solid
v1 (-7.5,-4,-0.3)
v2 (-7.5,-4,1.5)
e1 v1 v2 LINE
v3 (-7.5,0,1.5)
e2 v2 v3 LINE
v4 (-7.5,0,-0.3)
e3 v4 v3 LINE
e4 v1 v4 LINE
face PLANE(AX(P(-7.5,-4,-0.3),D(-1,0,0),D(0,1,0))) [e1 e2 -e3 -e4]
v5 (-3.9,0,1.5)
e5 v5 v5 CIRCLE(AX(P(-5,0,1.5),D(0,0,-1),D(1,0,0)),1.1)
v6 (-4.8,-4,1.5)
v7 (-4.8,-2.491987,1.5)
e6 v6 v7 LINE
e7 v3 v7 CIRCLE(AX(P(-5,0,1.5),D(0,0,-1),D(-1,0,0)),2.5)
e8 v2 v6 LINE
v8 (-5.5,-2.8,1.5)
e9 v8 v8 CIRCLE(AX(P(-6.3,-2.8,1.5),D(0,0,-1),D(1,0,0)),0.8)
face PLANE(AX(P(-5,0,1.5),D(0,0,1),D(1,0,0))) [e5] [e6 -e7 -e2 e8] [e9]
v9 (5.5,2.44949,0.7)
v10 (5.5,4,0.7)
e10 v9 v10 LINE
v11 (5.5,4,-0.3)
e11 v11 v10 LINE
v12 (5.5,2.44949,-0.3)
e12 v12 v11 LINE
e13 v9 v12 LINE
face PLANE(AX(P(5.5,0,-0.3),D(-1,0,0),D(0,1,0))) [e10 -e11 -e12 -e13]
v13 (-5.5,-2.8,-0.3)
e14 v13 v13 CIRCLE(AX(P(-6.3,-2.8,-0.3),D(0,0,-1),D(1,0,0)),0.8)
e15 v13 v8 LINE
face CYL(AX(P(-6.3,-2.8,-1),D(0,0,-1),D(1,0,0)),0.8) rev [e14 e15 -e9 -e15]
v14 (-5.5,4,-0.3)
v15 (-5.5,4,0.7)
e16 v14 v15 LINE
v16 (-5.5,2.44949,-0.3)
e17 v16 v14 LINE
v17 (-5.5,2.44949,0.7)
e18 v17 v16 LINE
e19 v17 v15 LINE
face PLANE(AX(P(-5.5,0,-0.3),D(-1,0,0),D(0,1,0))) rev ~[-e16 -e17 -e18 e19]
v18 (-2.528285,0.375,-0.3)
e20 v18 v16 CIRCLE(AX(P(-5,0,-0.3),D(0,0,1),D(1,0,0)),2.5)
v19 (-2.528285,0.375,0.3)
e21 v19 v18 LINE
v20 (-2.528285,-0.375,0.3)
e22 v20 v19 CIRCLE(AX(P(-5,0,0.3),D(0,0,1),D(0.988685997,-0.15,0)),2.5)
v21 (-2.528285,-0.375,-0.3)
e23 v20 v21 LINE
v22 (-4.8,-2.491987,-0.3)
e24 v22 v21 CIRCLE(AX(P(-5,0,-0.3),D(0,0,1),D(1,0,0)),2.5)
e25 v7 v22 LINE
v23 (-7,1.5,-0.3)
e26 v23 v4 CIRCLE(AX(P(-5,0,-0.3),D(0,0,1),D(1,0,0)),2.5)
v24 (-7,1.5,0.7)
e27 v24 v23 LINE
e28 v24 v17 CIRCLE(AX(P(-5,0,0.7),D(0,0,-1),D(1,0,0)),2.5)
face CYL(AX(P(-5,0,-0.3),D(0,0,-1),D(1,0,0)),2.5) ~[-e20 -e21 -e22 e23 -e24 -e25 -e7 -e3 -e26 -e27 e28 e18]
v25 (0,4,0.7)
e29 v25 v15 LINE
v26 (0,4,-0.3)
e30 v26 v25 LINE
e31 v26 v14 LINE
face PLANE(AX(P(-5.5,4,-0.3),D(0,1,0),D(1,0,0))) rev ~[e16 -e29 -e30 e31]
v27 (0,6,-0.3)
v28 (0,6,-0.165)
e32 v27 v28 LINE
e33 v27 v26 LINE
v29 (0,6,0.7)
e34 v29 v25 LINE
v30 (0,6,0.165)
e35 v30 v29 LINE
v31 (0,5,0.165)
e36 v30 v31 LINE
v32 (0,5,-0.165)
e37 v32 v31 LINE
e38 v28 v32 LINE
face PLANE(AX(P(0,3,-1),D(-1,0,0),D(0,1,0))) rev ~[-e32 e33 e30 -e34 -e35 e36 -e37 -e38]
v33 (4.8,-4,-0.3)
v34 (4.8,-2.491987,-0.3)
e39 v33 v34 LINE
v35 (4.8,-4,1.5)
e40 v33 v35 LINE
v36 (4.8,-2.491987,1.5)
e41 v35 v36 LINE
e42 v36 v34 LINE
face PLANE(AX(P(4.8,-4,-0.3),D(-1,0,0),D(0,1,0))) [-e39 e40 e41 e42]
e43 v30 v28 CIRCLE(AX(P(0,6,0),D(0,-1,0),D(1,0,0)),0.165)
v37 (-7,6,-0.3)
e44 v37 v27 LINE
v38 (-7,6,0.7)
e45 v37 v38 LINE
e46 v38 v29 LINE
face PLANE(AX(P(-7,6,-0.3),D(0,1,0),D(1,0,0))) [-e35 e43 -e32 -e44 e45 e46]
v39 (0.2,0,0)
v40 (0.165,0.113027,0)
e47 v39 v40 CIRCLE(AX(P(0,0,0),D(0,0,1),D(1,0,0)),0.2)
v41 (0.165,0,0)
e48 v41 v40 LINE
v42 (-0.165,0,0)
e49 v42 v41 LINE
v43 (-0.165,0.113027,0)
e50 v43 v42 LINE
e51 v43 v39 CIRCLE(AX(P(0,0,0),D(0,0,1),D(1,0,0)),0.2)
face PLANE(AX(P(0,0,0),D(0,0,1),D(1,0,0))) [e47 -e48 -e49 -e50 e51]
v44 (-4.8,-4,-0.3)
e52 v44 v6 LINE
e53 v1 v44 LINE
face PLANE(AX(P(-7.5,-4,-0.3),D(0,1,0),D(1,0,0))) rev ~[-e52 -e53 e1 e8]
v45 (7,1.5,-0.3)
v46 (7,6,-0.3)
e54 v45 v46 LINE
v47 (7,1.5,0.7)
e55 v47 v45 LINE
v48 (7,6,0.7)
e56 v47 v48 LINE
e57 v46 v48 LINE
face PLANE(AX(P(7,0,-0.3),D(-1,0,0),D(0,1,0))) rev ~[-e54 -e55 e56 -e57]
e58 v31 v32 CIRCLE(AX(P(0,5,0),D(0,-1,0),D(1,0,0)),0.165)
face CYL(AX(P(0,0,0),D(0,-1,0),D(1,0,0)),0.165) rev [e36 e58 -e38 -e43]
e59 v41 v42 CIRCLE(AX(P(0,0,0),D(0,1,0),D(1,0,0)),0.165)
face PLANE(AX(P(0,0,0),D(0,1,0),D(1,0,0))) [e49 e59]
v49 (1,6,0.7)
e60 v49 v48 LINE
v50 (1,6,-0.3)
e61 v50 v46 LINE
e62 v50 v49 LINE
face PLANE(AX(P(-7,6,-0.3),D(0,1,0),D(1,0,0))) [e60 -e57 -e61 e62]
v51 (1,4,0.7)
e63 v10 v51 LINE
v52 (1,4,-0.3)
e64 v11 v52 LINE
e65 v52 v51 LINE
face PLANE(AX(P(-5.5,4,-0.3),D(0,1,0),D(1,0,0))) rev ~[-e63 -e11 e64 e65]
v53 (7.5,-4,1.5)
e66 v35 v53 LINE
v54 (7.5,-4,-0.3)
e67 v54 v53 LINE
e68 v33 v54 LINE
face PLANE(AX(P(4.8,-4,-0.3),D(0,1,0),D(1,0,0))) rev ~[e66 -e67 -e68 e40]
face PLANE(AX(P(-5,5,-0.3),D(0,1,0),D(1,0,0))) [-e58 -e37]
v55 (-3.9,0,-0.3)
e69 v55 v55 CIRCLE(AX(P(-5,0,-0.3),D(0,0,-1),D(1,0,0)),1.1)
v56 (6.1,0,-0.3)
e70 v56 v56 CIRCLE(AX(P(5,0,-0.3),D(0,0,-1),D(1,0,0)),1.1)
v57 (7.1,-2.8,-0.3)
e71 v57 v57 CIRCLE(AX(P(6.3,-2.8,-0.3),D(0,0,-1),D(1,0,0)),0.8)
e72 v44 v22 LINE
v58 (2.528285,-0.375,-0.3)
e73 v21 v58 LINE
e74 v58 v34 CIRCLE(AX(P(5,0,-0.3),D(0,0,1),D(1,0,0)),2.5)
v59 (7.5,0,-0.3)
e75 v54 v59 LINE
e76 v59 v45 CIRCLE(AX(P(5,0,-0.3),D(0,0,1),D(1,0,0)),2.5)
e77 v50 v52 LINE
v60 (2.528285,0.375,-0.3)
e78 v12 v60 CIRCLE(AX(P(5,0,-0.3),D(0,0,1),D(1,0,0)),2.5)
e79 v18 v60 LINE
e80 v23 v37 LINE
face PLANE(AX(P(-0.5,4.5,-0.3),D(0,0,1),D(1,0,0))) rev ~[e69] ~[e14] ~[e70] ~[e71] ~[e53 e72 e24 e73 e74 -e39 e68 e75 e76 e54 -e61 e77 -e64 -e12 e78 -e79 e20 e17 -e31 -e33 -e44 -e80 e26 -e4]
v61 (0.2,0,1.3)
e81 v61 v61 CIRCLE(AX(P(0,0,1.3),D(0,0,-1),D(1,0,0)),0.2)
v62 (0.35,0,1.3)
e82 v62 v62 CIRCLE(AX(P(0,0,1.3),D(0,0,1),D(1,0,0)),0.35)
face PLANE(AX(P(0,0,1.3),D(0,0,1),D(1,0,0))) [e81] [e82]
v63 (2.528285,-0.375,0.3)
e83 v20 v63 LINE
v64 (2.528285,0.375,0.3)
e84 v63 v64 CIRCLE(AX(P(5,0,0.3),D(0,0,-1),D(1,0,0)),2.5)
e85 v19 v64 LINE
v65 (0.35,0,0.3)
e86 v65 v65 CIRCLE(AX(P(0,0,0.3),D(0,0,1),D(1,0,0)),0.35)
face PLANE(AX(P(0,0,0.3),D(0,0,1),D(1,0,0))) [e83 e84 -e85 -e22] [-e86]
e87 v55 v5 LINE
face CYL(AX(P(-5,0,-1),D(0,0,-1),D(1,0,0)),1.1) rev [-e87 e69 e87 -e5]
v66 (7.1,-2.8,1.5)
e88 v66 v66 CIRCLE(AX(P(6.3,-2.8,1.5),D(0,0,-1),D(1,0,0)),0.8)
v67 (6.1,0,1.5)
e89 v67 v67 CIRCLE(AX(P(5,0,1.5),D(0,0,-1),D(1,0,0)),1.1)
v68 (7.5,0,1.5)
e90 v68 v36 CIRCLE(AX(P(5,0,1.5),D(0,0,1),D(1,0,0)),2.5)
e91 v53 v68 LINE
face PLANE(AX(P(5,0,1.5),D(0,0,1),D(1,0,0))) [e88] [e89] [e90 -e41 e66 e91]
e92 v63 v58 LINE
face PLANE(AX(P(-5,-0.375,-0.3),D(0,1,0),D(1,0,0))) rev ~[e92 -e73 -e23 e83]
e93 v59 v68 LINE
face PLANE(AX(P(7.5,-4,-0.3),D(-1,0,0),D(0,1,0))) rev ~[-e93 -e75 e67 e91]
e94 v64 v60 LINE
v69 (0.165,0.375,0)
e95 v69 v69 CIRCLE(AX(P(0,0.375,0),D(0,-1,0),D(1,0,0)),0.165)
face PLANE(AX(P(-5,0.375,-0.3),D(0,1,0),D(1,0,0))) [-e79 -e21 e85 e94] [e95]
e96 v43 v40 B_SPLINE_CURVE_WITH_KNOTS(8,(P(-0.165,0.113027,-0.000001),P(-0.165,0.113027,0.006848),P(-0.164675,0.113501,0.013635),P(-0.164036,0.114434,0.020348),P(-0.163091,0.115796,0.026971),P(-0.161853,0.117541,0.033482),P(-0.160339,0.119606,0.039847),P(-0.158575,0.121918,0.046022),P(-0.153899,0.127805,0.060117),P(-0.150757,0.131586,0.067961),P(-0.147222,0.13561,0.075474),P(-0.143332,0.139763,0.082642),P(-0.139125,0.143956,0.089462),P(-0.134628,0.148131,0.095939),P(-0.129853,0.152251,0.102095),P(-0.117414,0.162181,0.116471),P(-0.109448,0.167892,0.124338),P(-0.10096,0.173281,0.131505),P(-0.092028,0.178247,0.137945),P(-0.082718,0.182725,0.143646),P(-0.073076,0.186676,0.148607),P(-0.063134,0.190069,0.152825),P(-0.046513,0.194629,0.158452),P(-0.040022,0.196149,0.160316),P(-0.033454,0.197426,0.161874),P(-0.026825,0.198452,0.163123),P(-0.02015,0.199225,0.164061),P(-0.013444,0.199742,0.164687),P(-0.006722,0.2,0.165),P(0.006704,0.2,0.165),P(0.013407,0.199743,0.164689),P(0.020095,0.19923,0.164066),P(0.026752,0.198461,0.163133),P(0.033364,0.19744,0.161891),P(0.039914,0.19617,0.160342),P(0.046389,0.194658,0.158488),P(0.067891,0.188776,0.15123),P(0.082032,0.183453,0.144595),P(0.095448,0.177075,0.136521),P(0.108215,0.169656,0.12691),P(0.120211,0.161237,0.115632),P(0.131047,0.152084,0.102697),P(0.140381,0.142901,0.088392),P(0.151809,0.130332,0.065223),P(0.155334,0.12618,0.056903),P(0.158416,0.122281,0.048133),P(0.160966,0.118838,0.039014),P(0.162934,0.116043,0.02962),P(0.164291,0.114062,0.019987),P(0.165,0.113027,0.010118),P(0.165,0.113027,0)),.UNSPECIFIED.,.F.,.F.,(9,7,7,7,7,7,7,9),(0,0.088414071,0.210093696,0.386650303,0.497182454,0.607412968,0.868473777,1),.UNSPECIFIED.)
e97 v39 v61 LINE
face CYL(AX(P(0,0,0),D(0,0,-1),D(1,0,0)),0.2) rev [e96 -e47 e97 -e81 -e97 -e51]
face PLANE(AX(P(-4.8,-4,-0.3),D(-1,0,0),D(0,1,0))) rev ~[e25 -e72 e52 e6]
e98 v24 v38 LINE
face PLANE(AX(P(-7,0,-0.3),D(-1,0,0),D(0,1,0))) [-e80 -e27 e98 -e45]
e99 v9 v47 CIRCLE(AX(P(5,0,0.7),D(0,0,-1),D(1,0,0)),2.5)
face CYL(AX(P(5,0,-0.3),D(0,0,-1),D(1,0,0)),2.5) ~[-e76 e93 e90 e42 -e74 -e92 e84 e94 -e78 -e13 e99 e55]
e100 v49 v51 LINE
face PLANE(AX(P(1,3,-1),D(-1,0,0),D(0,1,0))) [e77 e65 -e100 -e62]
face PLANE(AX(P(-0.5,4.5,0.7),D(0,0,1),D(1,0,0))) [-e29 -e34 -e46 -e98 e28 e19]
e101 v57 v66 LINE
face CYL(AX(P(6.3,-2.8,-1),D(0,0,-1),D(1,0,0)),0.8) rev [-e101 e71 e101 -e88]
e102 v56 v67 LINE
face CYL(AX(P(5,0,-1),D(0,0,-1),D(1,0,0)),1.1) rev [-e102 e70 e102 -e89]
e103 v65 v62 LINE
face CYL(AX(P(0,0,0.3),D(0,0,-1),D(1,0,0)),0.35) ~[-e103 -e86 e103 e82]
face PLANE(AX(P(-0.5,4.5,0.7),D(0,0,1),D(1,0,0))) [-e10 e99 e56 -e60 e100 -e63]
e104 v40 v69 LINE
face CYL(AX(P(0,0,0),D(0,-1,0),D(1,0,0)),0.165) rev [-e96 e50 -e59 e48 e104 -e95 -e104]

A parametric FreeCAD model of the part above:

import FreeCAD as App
import Part
import Sketcher

V = App.Vector

doc = App.newDocument("Part")
params = doc.addObject("Spreadsheet::Sheet", "Params")
for row, (alias, value) in enumerate([
    ("sketch1_width", "1 mm"),
    ("sketch1_height", "6 mm"),
    ("pad1_length", "4 mm"),
    ("sketch2_width", "9 mm"),
    ("sketch2_height", "1 mm"),
    ("pad2_length", "1 mm"),
    ("sketch3_diameter", "1.6 mm"),
    ("pad3_length", "10 mm"),
    ("sketch4_diameter", "0.4 mm"),
    ("pad4_length", "9 mm"),
    ("sketch5_diameter", "2.2 mm"),
    ("pad5_length", "4 mm"),
    ("sketch6_diameter", "2.2 mm"),
    ("pad6_length", "4 mm"),
    ("sketch7_diameter", "0.33 mm"),
    ("pad7_length", "8 mm"),
    ("sketch8_diameter", "1.6 mm"),
    ("pad8_length", "10 mm"),
    ("sketch9_height", "4 mm"),
    ("sketch9_width", "2.7 mm"),
    ("pad9_length", "1.8 mm"),
    ("sketch10_height", "4 mm"),
    ("sketch10_width", "2.7 mm"),
    ("pad10_length", "1.8 mm"),
    ("sketch11_diameter", "5 mm"),
    ("pad11_length", "1.8 mm"),
    ("sketch12_diameter", "5 mm"),
    ("pad12_length", "1.8 mm"),
    ("sketch13_diameter", "0.7 mm"),
    ("pad13_length", "1 mm"),
    ("sketch14_width", "10 mm"),
    ("sketch14_height", "0.75 mm"),
    ("pad14_length", "0.6 mm"),
    ("sketch15_width", "11 mm"),
    ("sketch15_height", "4 mm"),
    ("pad15_length", "1 mm"),
    ("sketch16_width", "14 mm"),
    ("sketch16_height", "6 mm"),
    ("pad16_length", "1 mm"),
], start=1):
    params.set(f"A{row}", alias)
    params.set(f"B{row}", "=" + value)
    params.setAlias(f"B{row}", alias)

body = doc.addObject("PartDesign::Body", "Body")

# Sketch on XY plane
sketch1 = doc.addObject("Sketcher::SketchObject", "Sketch")
body.addObject(sketch1)
sketch1.AttachmentSupport = (doc.XY_Plane, [""])
sketch1.MapMode = "FlatFace"
sketch1.AttachmentOffset = App.Placement(V(0, 0, -1), App.Rotation())
sketch1.addGeometry(Part.LineSegment(V(0, 9, 0), V(0, 3, 0)), False)
sketch1.addGeometry(Part.LineSegment(V(0, 3, 0), V(1, 3, 0)), False)
sketch1.addGeometry(Part.LineSegment(V(1, 3, 0), V(1, 9, 0)), False)
sketch1.addGeometry(Part.LineSegment(V(1, 9, 0), V(0, 9, 0)), False)
sketch1.addConstraint(Sketcher.Constraint("Coincident", 0, 2, 1, 1))
sketch1.addConstraint(Sketcher.Constraint("Coincident", 1, 2, 2, 1))
sketch1.addConstraint(Sketcher.Constraint("Coincident", 2, 2, 3, 1))
sketch1.addConstraint(Sketcher.Constraint("Coincident", 3, 2, 0, 1))
sketch1.addConstraint(Sketcher.Constraint("Vertical", 0))
sketch1.addConstraint(Sketcher.Constraint("Horizontal", 1))
sketch1.addConstraint(Sketcher.Constraint("Vertical", 2))
sketch1.addConstraint(Sketcher.Constraint("Horizontal", 3))
sketch1.addConstraint(Sketcher.Constraint("PointOnObject", 0, 2, -2))
sketch1.addConstraint(Sketcher.Constraint("DistanceX", 1, 1, 1, 2, 1.0))
sketch1.addConstraint(Sketcher.Constraint("DistanceY", 0, 2, 0, 1, 6.0))
sketch1.addConstraint(Sketcher.Constraint("DistanceY", -1, 1, 0, 2, 3.0))
sketch1.setExpression("Constraints[9]", "Params.sketch1_width")
sketch1.setExpression("Constraints[10]", "Params.sketch1_height")
pad1 = doc.addObject("PartDesign::Pad", "Pad")
body.addObject(pad1)
pad1.Profile = sketch1
pad1.setExpression("Length", "Params.pad1_length")
body2 = doc.addObject("PartDesign::Body", "Body001")

# Sketch on XY plane
sketch2 = doc.addObject("Sketcher::SketchObject", "Sketch001")
body2.addObject(sketch2)
sketch2.AttachmentSupport = (doc.getObject("XY_Plane001"), [""])
sketch2.MapMode = "FlatFace"
sketch2.AttachmentOffset = App.Placement(V(0, 0, -0.3), App.Rotation())
sketch2.addGeometry(Part.LineSegment(V(-5, 5, 0), V(-5, 4, 0)), False)
sketch2.addGeometry(Part.LineSegment(V(-5, 4, 0), V(4, 4, 0)), False)
sketch2.addGeometry(Part.LineSegment(V(4, 4, 0), V(4, 5, 0)), False)
sketch2.addGeometry(Part.LineSegment(V(4, 5, 0), V(-5, 5, 0)), False)
sketch2.addConstraint(Sketcher.Constraint("Coincident", 0, 2, 1, 1))
sketch2.addConstraint(Sketcher.Constraint("Coincident", 1, 2, 2, 1))
sketch2.addConstraint(Sketcher.Constraint("Coincident", 2, 2, 3, 1))
sketch2.addConstraint(Sketcher.Constraint("Coincident", 3, 2, 0, 1))
sketch2.addConstraint(Sketcher.Constraint("Vertical", 0))
sketch2.addConstraint(Sketcher.Constraint("Horizontal", 1))
sketch2.addConstraint(Sketcher.Constraint("Vertical", 2))
sketch2.addConstraint(Sketcher.Constraint("Horizontal", 3))
sketch2.addConstraint(Sketcher.Constraint("DistanceX", 1, 1, 1, 2, 9.0))
sketch2.addConstraint(Sketcher.Constraint("DistanceY", 0, 2, 0, 1, 1.0))
sketch2.addConstraint(Sketcher.Constraint("DistanceX", 0, 2, -1, 1, 5.0))
sketch2.addConstraint(Sketcher.Constraint("DistanceY", -1, 1, 0, 2, 4.0))
sketch2.setExpression("Constraints[8]", "Params.sketch2_width")
sketch2.setExpression("Constraints[9]", "Params.sketch2_height")
pad2 = doc.addObject("PartDesign::Pad", "Pad001")
body2.addObject(pad2)
pad2.Profile = sketch2
pad2.setExpression("Length", "Params.pad2_length")
body3 = doc.addObject("PartDesign::Body", "Body002")

# Sketch on XY plane
sketch3 = doc.addObject("Sketcher::SketchObject", "Sketch002")
body3.addObject(sketch3)
sketch3.AttachmentSupport = (doc.getObject("XY_Plane002"), [""])
sketch3.MapMode = "FlatFace"
sketch3.AttachmentOffset = App.Placement(V(0, 0, -1), App.Rotation())
sketch3.addGeometry(Part.Circle(V(6.3, -2.8, 0), V(0, 0, 1), 0.8), False)
sketch3.addConstraint(Sketcher.Constraint("Diameter", 0, 1.6))
sketch3.addConstraint(Sketcher.Constraint("DistanceX", -1, 1, 0, 3, 6.3))
sketch3.addConstraint(Sketcher.Constraint("DistanceY", 0, 3, -1, 1, 2.8))
sketch3.setExpression("Constraints[0]", "Params.sketch3_diameter")
pad3 = doc.addObject("PartDesign::Pad", "Pad002")
body3.addObject(pad3)
pad3.Profile = sketch3
pad3.setExpression("Length", "Params.pad3_length")
body4 = doc.addObject("PartDesign::Body", "Body003")

# Sketch on XY plane
sketch4 = doc.addObject("Sketcher::SketchObject", "Sketch003")
body4.addObject(sketch4)
sketch4.AttachmentSupport = (doc.getObject("XY_Plane003"), [""])
sketch4.MapMode = "FlatFace"
sketch4.addGeometry(Part.Circle(V(0, 0, 0), V(0, 0, 1), 0.2), False)
sketch4.addConstraint(Sketcher.Constraint("Coincident", 0, 3, -1, 1))
sketch4.addConstraint(Sketcher.Constraint("Diameter", 0, 0.4))
sketch4.setExpression("Constraints[1]", "Params.sketch4_diameter")
pad4 = doc.addObject("PartDesign::Pad", "Pad003")
body4.addObject(pad4)
pad4.Profile = sketch4
pad4.setExpression("Length", "Params.pad4_length")
body5 = doc.addObject("PartDesign::Body", "Body004")

# Sketch on XY plane
sketch5 = doc.addObject("Sketcher::SketchObject", "Sketch004")
body5.addObject(sketch5)
sketch5.AttachmentSupport = (doc.getObject("XY_Plane004"), [""])
sketch5.MapMode = "FlatFace"
sketch5.AttachmentOffset = App.Placement(V(0, 0, -1), App.Rotation())
sketch5.addGeometry(Part.Circle(V(-5, 0, 0), V(0, 0, 1), 1.1), False)
sketch5.addConstraint(Sketcher.Constraint("PointOnObject", 0, 3, -1))
sketch5.addConstraint(Sketcher.Constraint("Diameter", 0, 2.2))
sketch5.addConstraint(Sketcher.Constraint("DistanceX", 0, 3, -1, 1, 5.0))
sketch5.setExpression("Constraints[1]", "Params.sketch5_diameter")
pad5 = doc.addObject("PartDesign::Pad", "Pad004")
body5.addObject(pad5)
pad5.Profile = sketch5
pad5.setExpression("Length", "Params.pad5_length")
body6 = doc.addObject("PartDesign::Body", "Body005")

# Sketch on XY plane
sketch6 = doc.addObject("Sketcher::SketchObject", "Sketch005")
body6.addObject(sketch6)
sketch6.AttachmentSupport = (doc.getObject("XY_Plane005"), [""])
sketch6.MapMode = "FlatFace"
sketch6.AttachmentOffset = App.Placement(V(0, 0, -1), App.Rotation())
sketch6.addGeometry(Part.Circle(V(5, 0, 0), V(0, 0, 1), 1.1), False)
sketch6.addConstraint(Sketcher.Constraint("PointOnObject", 0, 3, -1))
sketch6.addConstraint(Sketcher.Constraint("Diameter", 0, 2.2))
sketch6.addConstraint(Sketcher.Constraint("DistanceX", -1, 1, 0, 3, 5.0))
sketch6.setExpression("Constraints[1]", "Params.sketch6_diameter")
pad6 = doc.addObject("PartDesign::Pad", "Pad005")
body6.addObject(pad6)
pad6.Profile = sketch6
pad6.setExpression("Length", "Params.pad6_length")
body7 = doc.addObject("PartDesign::Body", "Body006")
body7.AllowCompound = True

# Sketch on XZ plane
sketch7 = doc.addObject("Sketcher::SketchObject", "Sketch006")
body7.addObject(sketch7)
sketch7.AttachmentSupport = (doc.getObject("XZ_Plane006"), [""])
sketch7.MapMode = "FlatFace"
sketch7.addGeometry(Part.Circle(V(0, 0, 0), V(0, 0, 1), 0.17), False)
sketch7.addConstraint(Sketcher.Constraint("Coincident", 0, 3, -1, 1))
sketch7.addConstraint(Sketcher.Constraint("Diameter", 0, 0.33))
sketch7.setExpression("Constraints[1]", "Params.sketch7_diameter")
pad7 = doc.addObject("PartDesign::Pad", "Pad006")
body7.addObject(pad7)
pad7.Profile = sketch7
pad7.setExpression("Length", "Params.pad7_length")
pad7.Reversed = True
doc.recompute()

boolean = doc.addObject("PartDesign::Boolean", "Boolean")
body7.addObject(boolean)
boolean.Type = "Fuse"
boolean.addObjects([body4])
doc.recompute()

boolean2 = doc.addObject("PartDesign::Boolean", "Boolean001")
body7.addObject(boolean2)
boolean2.Type = "Fuse"
boolean2.addObjects([body5])
doc.recompute()

boolean3 = doc.addObject("PartDesign::Boolean", "Boolean002")
body7.addObject(boolean3)
boolean3.Type = "Fuse"
boolean3.addObjects([body6])
body8 = doc.addObject("PartDesign::Body", "Body007")
body8.AllowCompound = True

# Sketch on XY plane
sketch8 = doc.addObject("Sketcher::SketchObject", "Sketch007")
body8.addObject(sketch8)
sketch8.AttachmentSupport = (doc.getObject("XY_Plane007"), [""])
sketch8.MapMode = "FlatFace"
sketch8.AttachmentOffset = App.Placement(V(0, 0, -1), App.Rotation())
sketch8.addGeometry(Part.Circle(V(-6.3, -2.8, 0), V(0, 0, 1), 0.8), False)
sketch8.addConstraint(Sketcher.Constraint("Diameter", 0, 1.6))
sketch8.addConstraint(Sketcher.Constraint("DistanceX", 0, 3, -1, 1, 6.3))
sketch8.addConstraint(Sketcher.Constraint("DistanceY", 0, 3, -1, 1, 2.8))
sketch8.setExpression("Constraints[0]", "Params.sketch8_diameter")
pad8 = doc.addObject("PartDesign::Pad", "Pad007")
body8.addObject(pad8)
pad8.Profile = sketch8
pad8.setExpression("Length", "Params.pad8_length")
doc.recompute()

boolean4 = doc.addObject("PartDesign::Boolean", "Boolean003")
body8.addObject(boolean4)
boolean4.Type = "Fuse"
boolean4.addObjects([body3])
doc.recompute()

boolean5 = doc.addObject("PartDesign::Boolean", "Boolean004")
body8.addObject(boolean5)
boolean5.Type = "Fuse"
boolean5.addObjects([body7])
body9 = doc.addObject("PartDesign::Body", "Body008")

# Sketch on XY plane
sketch9 = doc.addObject("Sketcher::SketchObject", "Sketch008")
body9.addObject(sketch9)
sketch9.AttachmentSupport = (doc.getObject("XY_Plane008"), [""])
sketch9.MapMode = "FlatFace"
sketch9.AttachmentOffset = App.Placement(V(0, 0, -0.3), App.Rotation())
sketch9.addGeometry(Part.LineSegment(V(4.8, 0, 0), V(4.8, -4, 0)), False)
sketch9.addGeometry(Part.LineSegment(V(4.8, -4, 0), V(7.5, -4, 0)), False)
sketch9.addGeometry(Part.LineSegment(V(7.5, -4, 0), V(7.5, 0, 0)), False)
sketch9.addGeometry(Part.LineSegment(V(7.5, 0, 0), V(4.8, 0, 0)), False)
sketch9.addConstraint(Sketcher.Constraint("Coincident", 0, 2, 1, 1))
sketch9.addConstraint(Sketcher.Constraint("Coincident", 1, 2, 2, 1))
sketch9.addConstraint(Sketcher.Constraint("Coincident", 2, 2, 3, 1))
sketch9.addConstraint(Sketcher.Constraint("Coincident", 3, 2, 0, 1))
sketch9.addConstraint(Sketcher.Constraint("Vertical", 0))
sketch9.addConstraint(Sketcher.Constraint("Horizontal", 1))
sketch9.addConstraint(Sketcher.Constraint("Vertical", 2))
sketch9.addConstraint(Sketcher.Constraint("Horizontal", 3))
sketch9.addConstraint(Sketcher.Constraint("PointOnObject", 2, 2, -1))
sketch9.addConstraint(Sketcher.Constraint("DistanceY", 0, 2, 0, 1, 4.0))
sketch9.addConstraint(Sketcher.Constraint("DistanceX", 1, 1, 1, 2, 2.7))
sketch9.addConstraint(Sketcher.Constraint("DistanceX", -1, 1, 0, 2, 4.8))
sketch9.setExpression("Constraints[9]", "Params.sketch9_height")
sketch9.setExpression("Constraints[10]", "Params.sketch9_width")
pad9 = doc.addObject("PartDesign::Pad", "Pad008")
body9.addObject(pad9)
pad9.Profile = sketch9
pad9.setExpression("Length", "Params.pad9_length")
body10 = doc.addObject("PartDesign::Body", "Body009")

# Sketch on XY plane
sketch10 = doc.addObject("Sketcher::SketchObject", "Sketch009")
body10.addObject(sketch10)
sketch10.AttachmentSupport = (doc.getObject("XY_Plane009"), [""])
sketch10.MapMode = "FlatFace"
sketch10.AttachmentOffset = App.Placement(V(0, 0, -0.3), App.Rotation())
sketch10.addGeometry(Part.LineSegment(V(-7.5, 0, 0), V(-7.5, -4, 0)), False)
sketch10.addGeometry(Part.LineSegment(V(-7.5, -4, 0), V(-4.8, -4, 0)), False)
sketch10.addGeometry(Part.LineSegment(V(-4.8, -4, 0), V(-4.8, 0, 0)), False)
sketch10.addGeometry(Part.LineSegment(V(-4.8, 0, 0), V(-7.5, 0, 0)), False)
sketch10.addConstraint(Sketcher.Constraint("Coincident", 0, 2, 1, 1))
sketch10.addConstraint(Sketcher.Constraint("Coincident", 1, 2, 2, 1))
sketch10.addConstraint(Sketcher.Constraint("Coincident", 2, 2, 3, 1))
sketch10.addConstraint(Sketcher.Constraint("Coincident", 3, 2, 0, 1))
sketch10.addConstraint(Sketcher.Constraint("Vertical", 0))
sketch10.addConstraint(Sketcher.Constraint("Horizontal", 1))
sketch10.addConstraint(Sketcher.Constraint("Vertical", 2))
sketch10.addConstraint(Sketcher.Constraint("Horizontal", 3))
sketch10.addConstraint(Sketcher.Constraint("PointOnObject", 2, 2, -1))
sketch10.addConstraint(Sketcher.Constraint("DistanceY", 0, 2, 0, 1, 4.0))
sketch10.addConstraint(Sketcher.Constraint("DistanceX", 1, 1, 1, 2, 2.7))
sketch10.addConstraint(Sketcher.Constraint("DistanceX", 0, 2, -1, 1, 7.5))
sketch10.setExpression("Constraints[9]", "Params.sketch10_height")
sketch10.setExpression("Constraints[10]", "Params.sketch10_width")
pad10 = doc.addObject("PartDesign::Pad", "Pad009")
body10.addObject(pad10)
pad10.Profile = sketch10
pad10.setExpression("Length", "Params.pad10_length")
body11 = doc.addObject("PartDesign::Body", "Body010")

# Sketch on XY plane
sketch11 = doc.addObject("Sketcher::SketchObject", "Sketch010")
body11.addObject(sketch11)
sketch11.AttachmentSupport = (doc.getObject("XY_Plane010"), [""])
sketch11.MapMode = "FlatFace"
sketch11.AttachmentOffset = App.Placement(V(0, 0, -0.3), App.Rotation())
sketch11.addGeometry(Part.Circle(V(5, 0, 0), V(0, 0, 1), 2.5), False)
sketch11.addConstraint(Sketcher.Constraint("PointOnObject", 0, 3, -1))
sketch11.addConstraint(Sketcher.Constraint("Diameter", 0, 5.0))
sketch11.addConstraint(Sketcher.Constraint("DistanceX", -1, 1, 0, 3, 5.0))
sketch11.setExpression("Constraints[1]", "Params.sketch11_diameter")
pad11 = doc.addObject("PartDesign::Pad", "Pad010")
body11.addObject(pad11)
pad11.Profile = sketch11
pad11.setExpression("Length", "Params.pad11_length")
body12 = doc.addObject("PartDesign::Body", "Body011")

# Sketch on XY plane
sketch12 = doc.addObject("Sketcher::SketchObject", "Sketch011")
body12.addObject(sketch12)
sketch12.AttachmentSupport = (doc.getObject("XY_Plane011"), [""])
sketch12.MapMode = "FlatFace"
sketch12.AttachmentOffset = App.Placement(V(0, 0, -0.3), App.Rotation())
sketch12.addGeometry(Part.Circle(V(-5, 0, 0), V(0, 0, 1), 2.5), False)
sketch12.addConstraint(Sketcher.Constraint("PointOnObject", 0, 3, -1))
sketch12.addConstraint(Sketcher.Constraint("Diameter", 0, 5.0))
sketch12.addConstraint(Sketcher.Constraint("DistanceX", 0, 3, -1, 1, 5.0))
sketch12.setExpression("Constraints[1]", "Params.sketch12_diameter")
pad12 = doc.addObject("PartDesign::Pad", "Pad011")
body12.addObject(pad12)
pad12.Profile = sketch12
pad12.setExpression("Length", "Params.pad12_length")
body13 = doc.addObject("PartDesign::Body", "Body012")

# Sketch on XY plane
sketch13 = doc.addObject("Sketcher::SketchObject", "Sketch012")
body13.addObject(sketch13)
sketch13.AttachmentSupport = (doc.getObject("XY_Plane012"), [""])
sketch13.MapMode = "FlatFace"
sketch13.AttachmentOffset = App.Placement(V(0, 0, 0.3), App.Rotation())
sketch13.addGeometry(Part.Circle(V(0, 0, 0), V(0, 0, 1), 0.35), False)
sketch13.addConstraint(Sketcher.Constraint("Coincident", 0, 3, -1, 1))
sketch13.addConstraint(Sketcher.Constraint("Diameter", 0, 0.7))
sketch13.setExpression("Constraints[1]", "Params.sketch13_diameter")
pad13 = doc.addObject("PartDesign::Pad", "Pad012")
body13.addObject(pad13)
pad13.Profile = sketch13
pad13.setExpression("Length", "Params.pad13_length")
body14 = doc.addObject("PartDesign::Body", "Body013")

# Sketch on XY plane
sketch14 = doc.addObject("Sketcher::SketchObject", "Sketch013")
body14.addObject(sketch14)
sketch14.AttachmentSupport = (doc.getObject("XY_Plane013"), [""])
sketch14.MapMode = "FlatFace"
sketch14.AttachmentOffset = App.Placement(V(0, 0, -0.3), App.Rotation())
sketch14.addGeometry(Part.LineSegment(V(-5, 0.4, 0), V(-5, -0.4, 0)), False)
sketch14.addGeometry(Part.LineSegment(V(-5, -0.4, 0), V(5, -0.4, 0)), False)
sketch14.addGeometry(Part.LineSegment(V(5, -0.4, 0), V(5, 0.4, 0)), False)
sketch14.addGeometry(Part.LineSegment(V(5, 0.4, 0), V(-5, 0.4, 0)), False)
sketch14.addConstraint(Sketcher.Constraint("Coincident", 0, 2, 1, 1))
sketch14.addConstraint(Sketcher.Constraint("Coincident", 1, 2, 2, 1))
sketch14.addConstraint(Sketcher.Constraint("Coincident", 2, 2, 3, 1))
sketch14.addConstraint(Sketcher.Constraint("Coincident", 3, 2, 0, 1))
sketch14.addConstraint(Sketcher.Constraint("Vertical", 0))
sketch14.addConstraint(Sketcher.Constraint("Horizontal", 1))
sketch14.addConstraint(Sketcher.Constraint("Vertical", 2))
sketch14.addConstraint(Sketcher.Constraint("Horizontal", 3))
sketch14.addConstraint(Sketcher.Constraint("Symmetric", 0, 2, 2, 2, -1, 1))
sketch14.addConstraint(Sketcher.Constraint("DistanceX", 1, 1, 1, 2, 10.0))
sketch14.addConstraint(Sketcher.Constraint("DistanceY", 0, 2, 0, 1, 0.75))
sketch14.setExpression("Constraints[9]", "Params.sketch14_width")
sketch14.setExpression("Constraints[10]", "Params.sketch14_height")
pad14 = doc.addObject("PartDesign::Pad", "Pad013")
body14.addObject(pad14)
pad14.Profile = sketch14
pad14.setExpression("Length", "Params.pad14_length")
doc.recompute()

boolean6 = doc.addObject("PartDesign::Boolean", "Boolean005")
body14.addObject(boolean6)
boolean6.Type = "Fuse"
boolean6.addObjects([body11])
doc.recompute()

boolean7 = doc.addObject("PartDesign::Boolean", "Boolean006")
body14.addObject(boolean7)
boolean7.Type = "Fuse"
boolean7.addObjects([body12])
doc.recompute()

boolean8 = doc.addObject("PartDesign::Boolean", "Boolean007")
body14.addObject(boolean8)
boolean8.Type = "Fuse"
boolean8.addObjects([body13])
body15 = doc.addObject("PartDesign::Body", "Body014")

# Sketch on XY plane
sketch15 = doc.addObject("Sketcher::SketchObject", "Sketch014")
body15.addObject(sketch15)
sketch15.AttachmentSupport = (doc.getObject("XY_Plane014"), [""])
sketch15.MapMode = "FlatFace"
sketch15.AttachmentOffset = App.Placement(V(0, 0, -0.3), App.Rotation())
sketch15.addGeometry(Part.LineSegment(V(-5.5, 4, 0), V(-5.5, 0, 0)), False)
sketch15.addGeometry(Part.LineSegment(V(-5.5, 0, 0), V(5.5, 0, 0)), False)
sketch15.addGeometry(Part.LineSegment(V(5.5, 0, 0), V(5.5, 4, 0)), False)
sketch15.addGeometry(Part.LineSegment(V(5.5, 4, 0), V(-5.5, 4, 0)), False)
sketch15.addConstraint(Sketcher.Constraint("Coincident", 0, 2, 1, 1))
sketch15.addConstraint(Sketcher.Constraint("Coincident", 1, 2, 2, 1))
sketch15.addConstraint(Sketcher.Constraint("Coincident", 2, 2, 3, 1))
sketch15.addConstraint(Sketcher.Constraint("Coincident", 3, 2, 0, 1))
sketch15.addConstraint(Sketcher.Constraint("Vertical", 0))
sketch15.addConstraint(Sketcher.Constraint("Horizontal", 1))
sketch15.addConstraint(Sketcher.Constraint("Vertical", 2))
sketch15.addConstraint(Sketcher.Constraint("Horizontal", 3))
sketch15.addConstraint(Sketcher.Constraint("Symmetric", 0, 2, 1, 2, -1, 1))
sketch15.addConstraint(Sketcher.Constraint("DistanceX", 1, 1, 1, 2, 11.0))
sketch15.addConstraint(Sketcher.Constraint("DistanceY", 0, 2, 0, 1, 4.0))
sketch15.setExpression("Constraints[9]", "Params.sketch15_width")
sketch15.setExpression("Constraints[10]", "Params.sketch15_height")
pad15 = doc.addObject("PartDesign::Pad", "Pad014")
body15.addObject(pad15)
pad15.Profile = sketch15
pad15.setExpression("Length", "Params.pad15_length")
body16 = doc.addObject("PartDesign::Body", "Body015")

# Sketch on XY plane
sketch16 = doc.addObject("Sketcher::SketchObject", "Sketch015")
body16.addObject(sketch16)
sketch16.AttachmentSupport = (doc.getObject("XY_Plane015"), [""])
sketch16.MapMode = "FlatFace"
sketch16.AttachmentOffset = App.Placement(V(0, 0, -0.3), App.Rotation())
sketch16.addGeometry(Part.LineSegment(V(-7, 6, 0), V(-7, 0, 0)), False)
sketch16.addGeometry(Part.LineSegment(V(-7, 0, 0), V(7, 0, 0)), False)
sketch16.addGeometry(Part.LineSegment(V(7, 0, 0), V(7, 6, 0)), False)
sketch16.addGeometry(Part.LineSegment(V(7, 6, 0), V(-7, 6, 0)), False)
sketch16.addConstraint(Sketcher.Constraint("Coincident", 0, 2, 1, 1))
sketch16.addConstraint(Sketcher.Constraint("Coincident", 1, 2, 2, 1))
sketch16.addConstraint(Sketcher.Constraint("Coincident", 2, 2, 3, 1))
sketch16.addConstraint(Sketcher.Constraint("Coincident", 3, 2, 0, 1))
sketch16.addConstraint(Sketcher.Constraint("Vertical", 0))
sketch16.addConstraint(Sketcher.Constraint("Horizontal", 1))
sketch16.addConstraint(Sketcher.Constraint("Vertical", 2))
sketch16.addConstraint(Sketcher.Constraint("Horizontal", 3))
sketch16.addConstraint(Sketcher.Constraint("Symmetric", 0, 2, 1, 2, -1, 1))
sketch16.addConstraint(Sketcher.Constraint("DistanceX", 1, 1, 1, 2, 14.0))
sketch16.addConstraint(Sketcher.Constraint("DistanceY", 0, 2, 0, 1, 6.0))
sketch16.setExpression("Constraints[9]", "Params.sketch16_width")
sketch16.setExpression("Constraints[10]", "Params.sketch16_height")
pad16 = doc.addObject("PartDesign::Pad", "Pad015")
body16.addObject(pad16)
pad16.Profile = sketch16
pad16.setExpression("Length", "Params.pad16_length")
doc.recompute()

boolean9 = doc.addObject("PartDesign::Boolean", "Boolean008")
body16.addObject(boolean9)
boolean9.Type = "Cut"
boolean9.addObjects([body15])
doc.recompute()

boolean10 = doc.addObject("PartDesign::Boolean", "Boolean009")
body16.addObject(boolean10)
boolean10.Type = "Fuse"
boolean10.addObjects([body9])
doc.recompute()

boolean11 = doc.addObject("PartDesign::Boolean", "Boolean010")
body16.addObject(boolean11)
boolean11.Type = "Fuse"
boolean11.addObjects([body10])
doc.recompute()

boolean12 = doc.addObject("PartDesign::Boolean", "Boolean011")
body16.addObject(boolean12)
boolean12.Type = "Fuse"
boolean12.addObjects([body14])
doc.recompute()

boolean13 = doc.addObject("PartDesign::Boolean", "Boolean012")
body16.addObject(boolean13)
boolean13.Type = "Cut"
boolean13.addObjects([body8])
doc.recompute()

boolean14 = doc.addObject("PartDesign::Boolean", "Boolean013")
body16.addObject(boolean14)
boolean14.Type = "Fuse"
boolean14.addObjects([body2])
doc.recompute()

boolean15 = doc.addObject("PartDesign::Boolean", "Boolean014")
body16.addObject(boolean15)
boolean15.Type = "Cut"
boolean15.addObjects([body])

doc.recompute()
